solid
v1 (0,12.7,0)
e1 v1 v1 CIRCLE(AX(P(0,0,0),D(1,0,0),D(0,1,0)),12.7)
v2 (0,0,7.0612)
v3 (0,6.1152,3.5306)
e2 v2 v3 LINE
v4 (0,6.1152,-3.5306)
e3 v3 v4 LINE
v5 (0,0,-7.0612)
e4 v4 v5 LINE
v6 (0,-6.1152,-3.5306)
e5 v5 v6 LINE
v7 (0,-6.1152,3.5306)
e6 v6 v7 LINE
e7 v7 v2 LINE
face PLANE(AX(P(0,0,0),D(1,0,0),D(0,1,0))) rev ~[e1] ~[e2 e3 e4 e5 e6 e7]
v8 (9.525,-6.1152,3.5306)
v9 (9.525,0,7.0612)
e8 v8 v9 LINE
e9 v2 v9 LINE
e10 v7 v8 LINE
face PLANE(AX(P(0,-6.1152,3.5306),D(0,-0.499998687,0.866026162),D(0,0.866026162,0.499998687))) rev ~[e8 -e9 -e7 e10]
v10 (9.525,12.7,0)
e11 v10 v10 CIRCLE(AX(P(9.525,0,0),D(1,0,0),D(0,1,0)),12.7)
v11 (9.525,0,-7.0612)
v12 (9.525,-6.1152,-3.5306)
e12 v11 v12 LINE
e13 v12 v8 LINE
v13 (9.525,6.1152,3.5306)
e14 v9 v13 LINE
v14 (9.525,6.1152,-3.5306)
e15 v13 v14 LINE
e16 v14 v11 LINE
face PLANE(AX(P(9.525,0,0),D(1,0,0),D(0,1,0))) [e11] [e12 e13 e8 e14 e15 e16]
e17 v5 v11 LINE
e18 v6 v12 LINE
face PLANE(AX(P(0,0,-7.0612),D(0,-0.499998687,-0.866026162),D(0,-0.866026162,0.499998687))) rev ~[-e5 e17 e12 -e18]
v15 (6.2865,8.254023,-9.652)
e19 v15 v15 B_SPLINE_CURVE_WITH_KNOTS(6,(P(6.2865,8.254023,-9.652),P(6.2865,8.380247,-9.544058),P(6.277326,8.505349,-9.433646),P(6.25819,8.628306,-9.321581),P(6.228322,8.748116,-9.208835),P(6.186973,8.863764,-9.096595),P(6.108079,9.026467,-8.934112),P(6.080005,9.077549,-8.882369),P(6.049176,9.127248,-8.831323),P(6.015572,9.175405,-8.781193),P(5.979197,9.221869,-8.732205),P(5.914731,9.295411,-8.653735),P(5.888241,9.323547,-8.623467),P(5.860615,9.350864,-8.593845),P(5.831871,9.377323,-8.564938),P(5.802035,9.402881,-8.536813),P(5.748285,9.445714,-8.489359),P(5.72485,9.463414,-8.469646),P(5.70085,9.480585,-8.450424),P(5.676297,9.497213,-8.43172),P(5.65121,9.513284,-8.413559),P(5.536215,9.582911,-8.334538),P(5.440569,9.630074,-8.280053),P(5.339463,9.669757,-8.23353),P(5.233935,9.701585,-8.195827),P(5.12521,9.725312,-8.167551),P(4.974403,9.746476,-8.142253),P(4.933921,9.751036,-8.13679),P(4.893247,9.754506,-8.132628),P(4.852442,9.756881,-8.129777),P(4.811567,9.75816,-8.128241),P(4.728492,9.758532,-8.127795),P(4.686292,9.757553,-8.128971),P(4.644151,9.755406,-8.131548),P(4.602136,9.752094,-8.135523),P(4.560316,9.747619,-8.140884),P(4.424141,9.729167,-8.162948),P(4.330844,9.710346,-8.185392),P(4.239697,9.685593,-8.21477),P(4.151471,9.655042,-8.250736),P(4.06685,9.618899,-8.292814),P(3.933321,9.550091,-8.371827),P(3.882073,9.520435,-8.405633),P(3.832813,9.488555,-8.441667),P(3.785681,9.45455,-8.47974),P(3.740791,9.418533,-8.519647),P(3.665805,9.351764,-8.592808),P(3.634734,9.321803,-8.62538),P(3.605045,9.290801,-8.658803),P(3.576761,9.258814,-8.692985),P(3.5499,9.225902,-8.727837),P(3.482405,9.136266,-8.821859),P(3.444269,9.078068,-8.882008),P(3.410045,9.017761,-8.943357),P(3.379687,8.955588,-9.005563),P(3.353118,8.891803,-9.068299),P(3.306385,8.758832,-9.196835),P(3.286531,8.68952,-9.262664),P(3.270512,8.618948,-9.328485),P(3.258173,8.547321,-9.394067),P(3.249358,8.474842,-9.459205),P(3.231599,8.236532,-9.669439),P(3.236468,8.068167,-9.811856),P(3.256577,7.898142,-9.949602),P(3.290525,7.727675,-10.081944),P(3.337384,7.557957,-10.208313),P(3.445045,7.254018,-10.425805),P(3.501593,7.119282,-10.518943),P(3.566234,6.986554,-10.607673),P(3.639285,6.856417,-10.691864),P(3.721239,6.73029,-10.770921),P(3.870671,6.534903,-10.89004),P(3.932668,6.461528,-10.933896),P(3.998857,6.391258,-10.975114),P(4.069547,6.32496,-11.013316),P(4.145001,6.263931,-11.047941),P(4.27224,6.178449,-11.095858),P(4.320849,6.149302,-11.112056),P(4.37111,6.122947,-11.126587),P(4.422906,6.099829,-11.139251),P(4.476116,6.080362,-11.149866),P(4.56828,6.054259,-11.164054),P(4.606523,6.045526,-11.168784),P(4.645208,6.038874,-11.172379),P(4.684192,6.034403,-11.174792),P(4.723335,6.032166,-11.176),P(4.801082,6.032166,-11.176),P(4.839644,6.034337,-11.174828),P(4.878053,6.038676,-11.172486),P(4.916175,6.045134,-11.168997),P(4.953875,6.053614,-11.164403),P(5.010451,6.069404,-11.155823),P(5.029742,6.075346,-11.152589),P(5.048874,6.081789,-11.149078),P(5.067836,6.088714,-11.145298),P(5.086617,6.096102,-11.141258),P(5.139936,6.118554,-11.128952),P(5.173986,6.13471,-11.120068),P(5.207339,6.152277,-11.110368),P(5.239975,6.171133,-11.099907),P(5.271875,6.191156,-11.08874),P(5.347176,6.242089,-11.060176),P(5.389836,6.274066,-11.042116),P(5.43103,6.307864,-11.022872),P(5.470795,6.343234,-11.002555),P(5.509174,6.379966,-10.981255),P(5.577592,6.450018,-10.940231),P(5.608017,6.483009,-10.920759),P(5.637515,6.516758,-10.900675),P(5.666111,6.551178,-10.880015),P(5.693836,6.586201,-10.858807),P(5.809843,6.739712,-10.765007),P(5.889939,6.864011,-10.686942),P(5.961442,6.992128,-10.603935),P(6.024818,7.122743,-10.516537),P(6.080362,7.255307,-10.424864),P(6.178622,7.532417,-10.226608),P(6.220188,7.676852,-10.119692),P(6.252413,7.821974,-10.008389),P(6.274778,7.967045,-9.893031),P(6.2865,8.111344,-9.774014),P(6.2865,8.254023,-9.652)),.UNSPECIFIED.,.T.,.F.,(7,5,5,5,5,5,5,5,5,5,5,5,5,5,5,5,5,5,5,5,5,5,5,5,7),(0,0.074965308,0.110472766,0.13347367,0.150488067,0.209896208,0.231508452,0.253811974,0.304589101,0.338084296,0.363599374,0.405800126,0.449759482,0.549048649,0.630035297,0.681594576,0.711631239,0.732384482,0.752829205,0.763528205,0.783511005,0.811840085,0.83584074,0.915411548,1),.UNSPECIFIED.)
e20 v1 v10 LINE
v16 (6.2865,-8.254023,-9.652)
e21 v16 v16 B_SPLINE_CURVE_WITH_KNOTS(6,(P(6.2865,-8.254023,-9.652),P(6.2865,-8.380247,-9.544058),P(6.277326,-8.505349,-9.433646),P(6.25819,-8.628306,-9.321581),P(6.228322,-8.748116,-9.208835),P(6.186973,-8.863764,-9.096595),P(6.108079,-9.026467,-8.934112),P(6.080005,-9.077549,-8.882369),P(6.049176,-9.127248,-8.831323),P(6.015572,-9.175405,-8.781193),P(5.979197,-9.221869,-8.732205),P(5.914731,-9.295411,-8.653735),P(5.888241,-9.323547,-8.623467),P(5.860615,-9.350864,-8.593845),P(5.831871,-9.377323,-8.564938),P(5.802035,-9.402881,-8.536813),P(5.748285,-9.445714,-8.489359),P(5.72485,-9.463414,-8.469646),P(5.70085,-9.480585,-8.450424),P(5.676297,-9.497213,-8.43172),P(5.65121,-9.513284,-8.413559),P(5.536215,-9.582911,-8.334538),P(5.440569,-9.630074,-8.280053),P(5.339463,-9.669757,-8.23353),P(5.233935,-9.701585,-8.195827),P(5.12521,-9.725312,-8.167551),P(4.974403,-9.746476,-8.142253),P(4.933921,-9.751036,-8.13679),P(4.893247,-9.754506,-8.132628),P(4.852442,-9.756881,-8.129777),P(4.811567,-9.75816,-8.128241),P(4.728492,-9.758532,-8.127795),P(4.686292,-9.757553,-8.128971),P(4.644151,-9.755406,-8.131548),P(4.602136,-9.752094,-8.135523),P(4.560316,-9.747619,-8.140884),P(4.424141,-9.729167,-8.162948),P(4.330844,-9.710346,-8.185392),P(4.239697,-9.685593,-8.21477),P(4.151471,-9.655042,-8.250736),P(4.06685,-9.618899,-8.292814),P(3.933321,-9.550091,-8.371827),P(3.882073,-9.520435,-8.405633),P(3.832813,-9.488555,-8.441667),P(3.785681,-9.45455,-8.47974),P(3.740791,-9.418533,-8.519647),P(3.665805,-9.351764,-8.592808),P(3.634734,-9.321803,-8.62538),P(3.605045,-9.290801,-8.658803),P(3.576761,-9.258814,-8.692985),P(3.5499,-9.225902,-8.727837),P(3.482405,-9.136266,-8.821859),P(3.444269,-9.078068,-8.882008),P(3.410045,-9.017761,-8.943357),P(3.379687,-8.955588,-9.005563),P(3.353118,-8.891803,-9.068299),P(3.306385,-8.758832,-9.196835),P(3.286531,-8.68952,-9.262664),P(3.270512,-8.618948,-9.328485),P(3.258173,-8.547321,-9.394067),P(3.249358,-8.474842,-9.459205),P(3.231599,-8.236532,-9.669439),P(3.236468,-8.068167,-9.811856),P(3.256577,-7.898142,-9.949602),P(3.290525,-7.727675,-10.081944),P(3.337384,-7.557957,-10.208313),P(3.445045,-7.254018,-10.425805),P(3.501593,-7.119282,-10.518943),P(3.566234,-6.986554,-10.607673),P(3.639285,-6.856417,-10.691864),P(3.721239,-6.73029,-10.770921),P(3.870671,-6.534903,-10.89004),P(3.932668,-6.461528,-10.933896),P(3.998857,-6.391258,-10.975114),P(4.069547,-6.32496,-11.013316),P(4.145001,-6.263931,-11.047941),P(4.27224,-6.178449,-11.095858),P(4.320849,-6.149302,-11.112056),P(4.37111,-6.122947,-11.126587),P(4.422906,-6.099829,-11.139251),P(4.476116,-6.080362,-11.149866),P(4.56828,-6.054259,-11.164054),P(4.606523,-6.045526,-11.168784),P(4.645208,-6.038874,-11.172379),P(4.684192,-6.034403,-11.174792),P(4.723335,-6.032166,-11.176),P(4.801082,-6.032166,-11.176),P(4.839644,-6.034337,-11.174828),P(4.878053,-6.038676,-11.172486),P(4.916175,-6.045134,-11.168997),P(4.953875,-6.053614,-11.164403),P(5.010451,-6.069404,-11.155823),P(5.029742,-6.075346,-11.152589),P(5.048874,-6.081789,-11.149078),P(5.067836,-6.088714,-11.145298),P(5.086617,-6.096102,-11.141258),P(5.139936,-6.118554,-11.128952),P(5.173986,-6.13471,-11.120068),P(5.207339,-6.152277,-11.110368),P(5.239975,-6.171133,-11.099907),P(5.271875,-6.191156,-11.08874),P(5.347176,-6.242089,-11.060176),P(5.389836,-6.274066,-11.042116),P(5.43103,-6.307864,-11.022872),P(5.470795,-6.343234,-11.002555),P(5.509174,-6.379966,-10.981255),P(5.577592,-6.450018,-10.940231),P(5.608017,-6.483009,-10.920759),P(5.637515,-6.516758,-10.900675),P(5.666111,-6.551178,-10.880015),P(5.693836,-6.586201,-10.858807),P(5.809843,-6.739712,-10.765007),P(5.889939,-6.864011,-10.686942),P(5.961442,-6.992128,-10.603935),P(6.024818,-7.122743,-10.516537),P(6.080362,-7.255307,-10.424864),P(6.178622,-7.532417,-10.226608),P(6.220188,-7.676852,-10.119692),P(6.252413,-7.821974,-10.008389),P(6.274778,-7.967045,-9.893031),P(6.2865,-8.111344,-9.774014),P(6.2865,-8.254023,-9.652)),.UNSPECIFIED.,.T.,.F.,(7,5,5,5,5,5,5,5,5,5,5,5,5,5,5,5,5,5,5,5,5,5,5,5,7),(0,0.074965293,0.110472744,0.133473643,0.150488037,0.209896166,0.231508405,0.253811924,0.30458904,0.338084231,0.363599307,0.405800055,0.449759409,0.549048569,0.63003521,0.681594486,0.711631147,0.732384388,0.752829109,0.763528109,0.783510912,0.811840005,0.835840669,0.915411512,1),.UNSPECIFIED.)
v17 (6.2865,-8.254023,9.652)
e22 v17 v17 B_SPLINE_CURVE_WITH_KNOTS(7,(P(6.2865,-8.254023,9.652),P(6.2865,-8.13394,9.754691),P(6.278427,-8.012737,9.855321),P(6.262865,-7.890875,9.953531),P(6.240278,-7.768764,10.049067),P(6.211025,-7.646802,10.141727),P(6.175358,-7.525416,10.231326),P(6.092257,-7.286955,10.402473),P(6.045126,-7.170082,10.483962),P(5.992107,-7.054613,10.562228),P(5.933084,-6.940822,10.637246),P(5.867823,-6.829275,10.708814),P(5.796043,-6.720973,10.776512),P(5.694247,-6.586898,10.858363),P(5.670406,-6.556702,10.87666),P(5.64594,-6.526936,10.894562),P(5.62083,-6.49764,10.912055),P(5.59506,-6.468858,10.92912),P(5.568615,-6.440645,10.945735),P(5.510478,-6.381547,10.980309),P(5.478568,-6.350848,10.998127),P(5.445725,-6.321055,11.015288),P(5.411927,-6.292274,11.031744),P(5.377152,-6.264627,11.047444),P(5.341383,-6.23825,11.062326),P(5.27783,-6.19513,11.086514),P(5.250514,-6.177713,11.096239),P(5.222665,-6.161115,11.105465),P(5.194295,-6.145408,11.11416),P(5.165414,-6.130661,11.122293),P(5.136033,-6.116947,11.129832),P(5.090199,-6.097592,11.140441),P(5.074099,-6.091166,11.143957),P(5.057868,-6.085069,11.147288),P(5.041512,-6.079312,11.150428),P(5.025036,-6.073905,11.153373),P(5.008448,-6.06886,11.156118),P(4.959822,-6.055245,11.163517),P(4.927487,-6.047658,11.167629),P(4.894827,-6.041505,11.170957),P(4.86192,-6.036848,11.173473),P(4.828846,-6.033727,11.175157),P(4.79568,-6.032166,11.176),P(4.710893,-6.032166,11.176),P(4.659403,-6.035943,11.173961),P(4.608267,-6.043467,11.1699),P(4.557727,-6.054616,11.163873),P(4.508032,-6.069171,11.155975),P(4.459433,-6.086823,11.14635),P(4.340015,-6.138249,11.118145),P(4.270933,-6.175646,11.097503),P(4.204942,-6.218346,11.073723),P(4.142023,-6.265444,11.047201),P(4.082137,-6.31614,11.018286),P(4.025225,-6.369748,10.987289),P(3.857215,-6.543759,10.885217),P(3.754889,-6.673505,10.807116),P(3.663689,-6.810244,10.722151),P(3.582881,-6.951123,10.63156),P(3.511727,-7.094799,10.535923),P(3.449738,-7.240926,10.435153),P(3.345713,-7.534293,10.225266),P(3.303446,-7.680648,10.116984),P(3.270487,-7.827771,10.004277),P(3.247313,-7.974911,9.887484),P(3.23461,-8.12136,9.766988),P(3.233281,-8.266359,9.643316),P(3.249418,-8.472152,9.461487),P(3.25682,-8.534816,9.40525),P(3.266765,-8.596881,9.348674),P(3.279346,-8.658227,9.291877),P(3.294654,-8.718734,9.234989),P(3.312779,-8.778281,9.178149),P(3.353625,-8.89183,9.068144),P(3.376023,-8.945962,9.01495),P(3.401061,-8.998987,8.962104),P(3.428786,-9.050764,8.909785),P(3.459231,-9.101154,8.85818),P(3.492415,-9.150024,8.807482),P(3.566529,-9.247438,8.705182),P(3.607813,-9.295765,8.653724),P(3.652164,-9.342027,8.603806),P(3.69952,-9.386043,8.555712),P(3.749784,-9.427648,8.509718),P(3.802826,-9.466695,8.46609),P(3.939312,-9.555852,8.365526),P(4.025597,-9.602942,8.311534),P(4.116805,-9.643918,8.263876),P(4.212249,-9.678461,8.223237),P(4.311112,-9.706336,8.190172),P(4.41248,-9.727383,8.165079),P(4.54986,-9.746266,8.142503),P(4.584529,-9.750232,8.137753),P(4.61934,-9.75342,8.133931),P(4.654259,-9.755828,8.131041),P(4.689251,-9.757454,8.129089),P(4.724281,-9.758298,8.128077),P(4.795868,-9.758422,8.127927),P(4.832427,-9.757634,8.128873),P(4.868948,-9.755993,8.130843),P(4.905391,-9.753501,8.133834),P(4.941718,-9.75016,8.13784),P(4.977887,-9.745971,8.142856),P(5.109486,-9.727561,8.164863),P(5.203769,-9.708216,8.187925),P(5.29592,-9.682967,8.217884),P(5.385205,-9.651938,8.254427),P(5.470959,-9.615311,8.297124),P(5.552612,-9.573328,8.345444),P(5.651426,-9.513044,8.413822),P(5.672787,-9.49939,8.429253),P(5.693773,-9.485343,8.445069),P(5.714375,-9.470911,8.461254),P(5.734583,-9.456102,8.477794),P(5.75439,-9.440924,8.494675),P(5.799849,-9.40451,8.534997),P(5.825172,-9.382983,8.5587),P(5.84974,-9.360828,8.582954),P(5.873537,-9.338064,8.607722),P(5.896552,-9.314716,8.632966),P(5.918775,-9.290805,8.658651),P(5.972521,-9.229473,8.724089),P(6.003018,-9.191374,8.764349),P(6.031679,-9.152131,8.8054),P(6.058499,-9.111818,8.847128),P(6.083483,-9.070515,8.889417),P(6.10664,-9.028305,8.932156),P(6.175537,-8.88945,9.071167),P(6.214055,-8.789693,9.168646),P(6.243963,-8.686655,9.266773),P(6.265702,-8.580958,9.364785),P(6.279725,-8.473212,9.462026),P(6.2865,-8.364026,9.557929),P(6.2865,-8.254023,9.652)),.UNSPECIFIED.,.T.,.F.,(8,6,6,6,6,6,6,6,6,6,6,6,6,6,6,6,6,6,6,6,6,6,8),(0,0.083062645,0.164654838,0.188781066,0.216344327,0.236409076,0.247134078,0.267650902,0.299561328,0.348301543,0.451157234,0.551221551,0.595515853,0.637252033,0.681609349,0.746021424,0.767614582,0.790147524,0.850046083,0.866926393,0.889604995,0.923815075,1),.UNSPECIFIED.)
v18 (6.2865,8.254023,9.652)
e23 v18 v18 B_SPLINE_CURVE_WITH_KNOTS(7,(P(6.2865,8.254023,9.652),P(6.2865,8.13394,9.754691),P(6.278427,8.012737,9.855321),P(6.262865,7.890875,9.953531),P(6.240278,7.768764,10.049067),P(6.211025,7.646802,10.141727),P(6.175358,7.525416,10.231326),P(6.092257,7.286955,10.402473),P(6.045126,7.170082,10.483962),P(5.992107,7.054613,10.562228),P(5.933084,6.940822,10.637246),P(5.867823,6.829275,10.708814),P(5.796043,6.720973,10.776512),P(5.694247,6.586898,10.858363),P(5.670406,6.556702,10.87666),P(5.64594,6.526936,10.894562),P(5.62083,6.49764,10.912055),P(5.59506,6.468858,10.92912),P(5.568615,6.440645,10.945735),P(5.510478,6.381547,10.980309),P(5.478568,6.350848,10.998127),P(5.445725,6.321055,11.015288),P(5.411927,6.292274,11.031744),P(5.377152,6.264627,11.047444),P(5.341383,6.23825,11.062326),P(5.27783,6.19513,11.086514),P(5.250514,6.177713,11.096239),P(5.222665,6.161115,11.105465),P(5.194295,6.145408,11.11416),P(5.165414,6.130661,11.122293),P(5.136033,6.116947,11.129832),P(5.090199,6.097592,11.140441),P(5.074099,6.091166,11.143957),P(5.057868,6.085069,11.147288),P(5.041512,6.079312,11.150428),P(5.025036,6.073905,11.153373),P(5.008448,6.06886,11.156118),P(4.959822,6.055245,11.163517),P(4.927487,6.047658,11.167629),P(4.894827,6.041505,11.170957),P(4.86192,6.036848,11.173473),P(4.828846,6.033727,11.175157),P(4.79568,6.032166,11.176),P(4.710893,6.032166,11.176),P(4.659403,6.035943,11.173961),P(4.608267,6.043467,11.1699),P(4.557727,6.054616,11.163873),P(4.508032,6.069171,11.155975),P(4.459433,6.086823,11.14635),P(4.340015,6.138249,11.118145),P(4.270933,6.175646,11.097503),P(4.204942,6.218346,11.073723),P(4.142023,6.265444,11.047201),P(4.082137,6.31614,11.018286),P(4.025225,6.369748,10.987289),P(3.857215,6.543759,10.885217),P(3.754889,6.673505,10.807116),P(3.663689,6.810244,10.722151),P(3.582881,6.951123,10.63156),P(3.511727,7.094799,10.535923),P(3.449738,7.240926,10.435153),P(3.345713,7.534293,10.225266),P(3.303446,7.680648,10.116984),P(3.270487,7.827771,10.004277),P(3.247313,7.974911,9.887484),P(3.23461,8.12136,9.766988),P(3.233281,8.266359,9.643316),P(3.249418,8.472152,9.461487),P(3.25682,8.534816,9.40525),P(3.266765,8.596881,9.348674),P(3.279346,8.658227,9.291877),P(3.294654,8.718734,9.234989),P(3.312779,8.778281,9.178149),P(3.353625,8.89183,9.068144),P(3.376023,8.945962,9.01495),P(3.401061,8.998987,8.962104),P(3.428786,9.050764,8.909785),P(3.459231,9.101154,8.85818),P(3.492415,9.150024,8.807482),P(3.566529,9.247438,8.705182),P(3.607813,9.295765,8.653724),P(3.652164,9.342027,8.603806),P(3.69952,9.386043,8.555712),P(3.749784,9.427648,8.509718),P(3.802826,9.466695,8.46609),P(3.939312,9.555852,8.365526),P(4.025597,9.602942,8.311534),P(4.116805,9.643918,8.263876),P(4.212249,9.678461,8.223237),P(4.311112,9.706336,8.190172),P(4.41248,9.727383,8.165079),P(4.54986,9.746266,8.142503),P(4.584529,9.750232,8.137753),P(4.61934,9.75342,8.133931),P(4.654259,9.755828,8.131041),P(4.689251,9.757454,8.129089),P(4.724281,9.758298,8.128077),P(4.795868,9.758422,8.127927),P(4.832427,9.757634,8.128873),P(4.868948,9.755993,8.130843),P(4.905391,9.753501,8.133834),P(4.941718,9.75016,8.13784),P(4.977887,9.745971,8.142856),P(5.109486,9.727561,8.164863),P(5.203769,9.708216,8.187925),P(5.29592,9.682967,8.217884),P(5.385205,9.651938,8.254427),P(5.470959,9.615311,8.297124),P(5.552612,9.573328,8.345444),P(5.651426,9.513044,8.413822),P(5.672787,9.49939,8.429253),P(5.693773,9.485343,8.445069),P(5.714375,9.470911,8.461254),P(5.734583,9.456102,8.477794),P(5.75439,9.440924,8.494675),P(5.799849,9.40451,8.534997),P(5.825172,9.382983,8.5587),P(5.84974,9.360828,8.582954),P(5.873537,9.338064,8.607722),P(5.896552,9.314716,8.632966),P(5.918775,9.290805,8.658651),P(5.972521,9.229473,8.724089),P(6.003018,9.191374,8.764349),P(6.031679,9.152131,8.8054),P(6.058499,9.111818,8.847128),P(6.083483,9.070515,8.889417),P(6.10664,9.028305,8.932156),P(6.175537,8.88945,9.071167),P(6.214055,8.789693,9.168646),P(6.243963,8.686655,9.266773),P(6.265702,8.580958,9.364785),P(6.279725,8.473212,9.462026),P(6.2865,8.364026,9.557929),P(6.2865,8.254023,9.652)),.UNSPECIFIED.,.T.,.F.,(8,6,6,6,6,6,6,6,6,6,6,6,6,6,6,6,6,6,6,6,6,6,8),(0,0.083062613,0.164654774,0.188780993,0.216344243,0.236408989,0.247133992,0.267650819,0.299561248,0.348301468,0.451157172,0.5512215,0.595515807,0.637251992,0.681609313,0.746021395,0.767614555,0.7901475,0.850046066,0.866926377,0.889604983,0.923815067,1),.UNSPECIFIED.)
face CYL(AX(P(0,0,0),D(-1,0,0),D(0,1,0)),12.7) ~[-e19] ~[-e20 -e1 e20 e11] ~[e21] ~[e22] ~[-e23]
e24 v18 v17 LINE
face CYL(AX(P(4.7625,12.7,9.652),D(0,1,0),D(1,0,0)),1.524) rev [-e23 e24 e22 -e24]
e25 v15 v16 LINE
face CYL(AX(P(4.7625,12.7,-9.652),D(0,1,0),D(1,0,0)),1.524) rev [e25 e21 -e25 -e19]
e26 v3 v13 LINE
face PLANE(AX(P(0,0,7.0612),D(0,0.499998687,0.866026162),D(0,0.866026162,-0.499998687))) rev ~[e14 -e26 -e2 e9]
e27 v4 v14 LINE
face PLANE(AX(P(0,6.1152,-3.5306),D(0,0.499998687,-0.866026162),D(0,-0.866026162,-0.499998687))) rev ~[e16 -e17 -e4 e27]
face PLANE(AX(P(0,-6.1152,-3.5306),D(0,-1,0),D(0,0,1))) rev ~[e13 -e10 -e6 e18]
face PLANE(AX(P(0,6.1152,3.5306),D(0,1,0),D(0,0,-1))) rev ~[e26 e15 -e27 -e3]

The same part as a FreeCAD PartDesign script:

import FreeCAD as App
import Part
import Sketcher
Q = App.Units.Quantity

doc = App.newDocument("Part")
body = doc.addObject("PartDesign::Body", "Body")

# Sketch on YZ plane
sketch1 = body.newObject("Sketcher::SketchObject", "Sketch")
sketch1.AttachmentSupport = (doc.getObject("YZ_Plane"), [""])
sketch1.MapMode = "FlatFace"
sketch1.addGeometry(Part.Circle(App.Vector(0, 0, 0), App.Vector(0, 0, 1), 13), False)
sketch1.addGeometry(Part.LineSegment(App.Vector(6, -4, 0), App.Vector(0, -7, 0)), False)
sketch1.addGeometry(Part.LineSegment(App.Vector(0, -7, 0), App.Vector(-6, -4, 0)), False)
sketch1.addGeometry(Part.LineSegment(App.Vector(-6, -4, 0), App.Vector(-6, 4, 0)), False)
sketch1.addGeometry(Part.LineSegment(App.Vector(-6, 4, 0), App.Vector(0, 7, 0)), False)
sketch1.addGeometry(Part.LineSegment(App.Vector(0, 7, 0), App.Vector(6, 4, 0)), False)
sketch1.addGeometry(Part.LineSegment(App.Vector(6, 4, 0), App.Vector(6, -4, 0)), False)
sketch1.addConstraint(Sketcher.Constraint("Coincident", 1, 2, 2, 1))
sketch1.addConstraint(Sketcher.Constraint("Coincident", 2, 2, 3, 1))
sketch1.addConstraint(Sketcher.Constraint("Coincident", 3, 2, 4, 1))
sketch1.addConstraint(Sketcher.Constraint("Coincident", 4, 2, 5, 1))
sketch1.addConstraint(Sketcher.Constraint("Coincident", 5, 2, 6, 1))
sketch1.addConstraint(Sketcher.Constraint("Coincident", 6, 2, 1, 1))
sketch1.addConstraint(Sketcher.Constraint("Vertical", 3))
sketch1.addConstraint(Sketcher.Constraint("Vertical", 6))
sketch1.addConstraint(Sketcher.Constraint("Coincident", 0, 3, -1, 1))
sketch1.addConstraint(Sketcher.Constraint("Symmetric", 1, 2, 4, 2, -1, 1))
sketch1.addConstraint(Sketcher.Constraint("Symmetric", 2, 2, 5, 2, -1, 1))
sketch1.addConstraint(Sketcher.Constraint("PointOnObject", 1, 2, -2))
sketch1.addConstraint(Sketcher.Constraint("Parallel", 1, 4))
sketch1.addConstraint(Sketcher.Constraint("Horizontal", 3, 2, 5, 2))
sketch1.addConstraint(Sketcher.Constraint("Diameter", 0, Q("1 in")))
sketch1.addConstraint(Sketcher.Constraint("DistanceY", 3, 1, 3, 2, Q("0.278 in")))
sketch1.addConstraint(Sketcher.Constraint("Distance", 1, Q("0.278 in")))
sketch1.addConstraint(Sketcher.Constraint("DistanceY", 1, 2, -1, 1, Q("0.278 in")))
pad1 = body.newObject("PartDesign::Pad", "Pad")
pad1.Profile = sketch1
pad1.Length = Q("0.375 in")

# Sketch on XZ plane
sketch2 = body.newObject("Sketcher::SketchObject", "Sketch001")
sketch2.AttachmentSupport = (doc.getObject("XZ_Plane"), [""])
sketch2.MapMode = "FlatFace"
sketch2.AttachmentOffset = App.Placement(App.Vector(0, 0, -0.5 * 25.4), App.Rotation())
sketch2.addGeometry(Part.Circle(App.Vector(4.8, 9.7, 0), App.Vector(0, 0, 1), 1.5), False)
sketch2.addGeometry(Part.Circle(App.Vector(4.8, -9.7, 0), App.Vector(0, 0, 1), 1.5), False)
sketch2.addConstraint(Sketcher.Constraint("Equal", 0, 1))
sketch2.addConstraint(Sketcher.Constraint("Symmetric", 0, 3, 1, 3, -1))
sketch2.addConstraint(Sketcher.Constraint("Diameter", 0, Q("0.12 in")))
sketch2.addConstraint(Sketcher.Constraint("DistanceY", -1, 1, 0, 3, Q("0.38 in")))
sketch2.addConstraint(Sketcher.Constraint("DistanceX", -1, 1, 0, 3, Q("0.1875 in")))
pocket1 = body.newObject("PartDesign::Pocket", "Pocket")
pocket1.Profile = sketch2
pocket1.Length = Q("1 in")
pocket1.Reversed = True

doc.recompute()
